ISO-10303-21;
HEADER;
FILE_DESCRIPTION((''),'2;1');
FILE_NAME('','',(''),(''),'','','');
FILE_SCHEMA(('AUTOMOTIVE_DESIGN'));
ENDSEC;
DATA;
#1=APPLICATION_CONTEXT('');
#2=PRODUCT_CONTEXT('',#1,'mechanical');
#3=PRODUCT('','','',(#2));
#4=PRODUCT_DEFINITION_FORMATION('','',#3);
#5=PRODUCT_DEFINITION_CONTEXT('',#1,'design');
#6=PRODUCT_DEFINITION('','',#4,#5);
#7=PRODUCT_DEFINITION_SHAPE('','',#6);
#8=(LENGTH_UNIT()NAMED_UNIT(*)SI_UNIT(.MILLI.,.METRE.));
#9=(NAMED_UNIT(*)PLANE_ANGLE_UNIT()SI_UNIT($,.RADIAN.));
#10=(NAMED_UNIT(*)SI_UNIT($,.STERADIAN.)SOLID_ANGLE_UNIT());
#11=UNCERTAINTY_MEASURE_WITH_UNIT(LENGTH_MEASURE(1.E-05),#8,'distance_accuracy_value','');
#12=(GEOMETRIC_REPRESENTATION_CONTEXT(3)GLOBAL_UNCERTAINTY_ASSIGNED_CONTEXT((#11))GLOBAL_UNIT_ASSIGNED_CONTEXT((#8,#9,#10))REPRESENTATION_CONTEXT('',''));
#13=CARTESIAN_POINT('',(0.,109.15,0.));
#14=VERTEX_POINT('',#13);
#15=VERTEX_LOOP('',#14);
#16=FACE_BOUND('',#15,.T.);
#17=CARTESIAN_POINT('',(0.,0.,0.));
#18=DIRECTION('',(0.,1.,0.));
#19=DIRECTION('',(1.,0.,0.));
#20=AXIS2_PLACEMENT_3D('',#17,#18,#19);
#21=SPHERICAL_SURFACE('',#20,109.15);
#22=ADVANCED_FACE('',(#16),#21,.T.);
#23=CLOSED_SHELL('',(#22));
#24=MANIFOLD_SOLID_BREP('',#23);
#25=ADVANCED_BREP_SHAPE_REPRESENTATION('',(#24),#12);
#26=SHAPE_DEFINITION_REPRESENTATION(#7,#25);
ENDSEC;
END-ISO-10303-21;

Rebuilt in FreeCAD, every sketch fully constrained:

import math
import FreeCAD as App
import Part
import Sketcher
from FreeCAD import Vector
Q = App.Units.Quantity

doc = App.newDocument("Part")
body = doc.addObject("PartDesign::Body", "Body")

# Sketch on XY plane
sketch1 = doc.addObject("Sketcher::SketchObject", "Sketch")
body.addObject(sketch1)
sketch1.AttachmentSupport = (doc.XY_Plane, [""])
sketch1.MapMode = "FlatFace"
sketch1.addGeometry([
    Part.LineSegment(Vector(0, -109, 0), Vector(0, 109, 0)),
    Part.ArcOfCircle(Part.Circle(Vector(0, 0, 0), Vector(0, 0, 1), 109), math.radians(90), math.radians(270)),
], False)
sketch1.addConstraint([
    Sketcher.Constraint("Coincident", 0, 1, 1, 2),
    Sketcher.Constraint("Coincident", 1, 1, 0, 2),
    Sketcher.Constraint("Vertical", 0),
    Sketcher.Constraint("Coincident", 1, 3, -1, 1),
    Sketcher.Constraint("PointOnObject", 0, 1, -2),
    Sketcher.Constraint("Radius", 1, Q("109.15 mm")),
])
revolution = doc.addObject("PartDesign::Revolution", "Revolution")
body.addObject(revolution)
revolution.Profile = sketch1
revolution.ReferenceAxis = (sketch1, ["V_Axis"])
revolution.Angle = 360

doc.recompute()
